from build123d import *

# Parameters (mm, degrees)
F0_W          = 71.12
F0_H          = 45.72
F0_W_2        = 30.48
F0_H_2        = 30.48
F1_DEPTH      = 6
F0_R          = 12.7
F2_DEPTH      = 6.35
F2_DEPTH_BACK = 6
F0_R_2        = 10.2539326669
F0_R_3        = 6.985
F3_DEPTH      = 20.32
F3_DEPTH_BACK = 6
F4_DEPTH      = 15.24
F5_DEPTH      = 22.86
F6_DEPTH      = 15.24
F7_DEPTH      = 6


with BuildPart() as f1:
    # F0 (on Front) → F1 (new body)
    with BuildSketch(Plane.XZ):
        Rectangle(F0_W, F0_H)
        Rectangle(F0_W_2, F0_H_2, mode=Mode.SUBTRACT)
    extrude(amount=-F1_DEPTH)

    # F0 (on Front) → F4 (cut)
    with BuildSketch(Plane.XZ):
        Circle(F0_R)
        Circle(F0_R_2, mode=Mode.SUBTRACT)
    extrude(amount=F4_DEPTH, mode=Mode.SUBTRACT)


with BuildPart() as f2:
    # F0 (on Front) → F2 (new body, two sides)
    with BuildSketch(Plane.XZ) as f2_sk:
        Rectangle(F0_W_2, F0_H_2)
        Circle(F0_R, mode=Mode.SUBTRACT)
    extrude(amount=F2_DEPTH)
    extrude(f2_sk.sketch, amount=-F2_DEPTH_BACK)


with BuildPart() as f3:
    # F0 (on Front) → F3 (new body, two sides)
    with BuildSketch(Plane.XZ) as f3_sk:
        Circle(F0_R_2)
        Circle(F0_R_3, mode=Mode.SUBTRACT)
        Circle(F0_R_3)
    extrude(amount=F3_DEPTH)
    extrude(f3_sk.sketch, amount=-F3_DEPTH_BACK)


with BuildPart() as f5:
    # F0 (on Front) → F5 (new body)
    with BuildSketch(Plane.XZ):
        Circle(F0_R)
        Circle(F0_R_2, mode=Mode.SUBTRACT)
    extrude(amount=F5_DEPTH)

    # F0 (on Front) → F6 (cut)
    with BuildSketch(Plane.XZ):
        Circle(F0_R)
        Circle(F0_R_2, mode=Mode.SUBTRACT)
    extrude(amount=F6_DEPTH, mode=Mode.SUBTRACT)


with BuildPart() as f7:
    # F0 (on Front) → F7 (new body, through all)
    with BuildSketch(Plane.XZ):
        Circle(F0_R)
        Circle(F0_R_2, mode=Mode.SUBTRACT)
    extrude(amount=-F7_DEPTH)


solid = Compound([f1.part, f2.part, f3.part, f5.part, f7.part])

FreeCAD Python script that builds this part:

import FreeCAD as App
import Part
import Sketcher
from FreeCAD import Vector
Q = App.Units.Quantity


def add_polygon(sketch, points):
    """Adds a closed chain of lines whose ends are joined by coincident constraints."""
    first, n = sketch.GeometryCount, len(points)
    for a, b in zip(points, points[1:] + points[:1]):
        sketch.addGeometry(Part.LineSegment(App.Vector(*a, 0), App.Vector(*b, 0)), False)
    for i in range(n):
        sketch.addConstraint(Sketcher.Constraint("Coincident", first + i, 2, first + (i + 1) % n, 1))

doc = App.newDocument("Part")
params = doc.addObject("Spreadsheet::Sheet", "Params")
for row, (alias, value) in enumerate([
    ("sketch1_width", "2.8 in"),
    ("sketch1_width2", "1.2 in"),
    ("sketch1_height", "1.8 in"),
    ("pad1_length", "6 mm"),
    ("sketch2_diameter", "1 in"),
    ("pocket1_length", "0.6 in"),
    ("sketch3_diameter", "1 in"),
    ("sketch3_width", "1.2 in"),
    ("pad2_length", "0.25 in"),
    ("pad2_length2", "6 mm"),
    ("pad3_length", "0.8 in"),
    ("pad3_length2", "6 mm"),
    ("sketch5_diameter", "1 in"),
    ("pad4_length", "0.9 in"),
    ("sketch6_diameter", "1 in"),
    ("pocket2_length", "0.6 in"),
    ("sketch7_diameter", "1 in"),
    ("pad5_length", "6 mm"),
], start=1):
    params.set(f"A{row}", alias)
    params.set(f"B{row}", "=" + value)
    params.setAlias(f"B{row}", alias)

body = doc.addObject("PartDesign::Body", "Body")

# Sketch on XZ plane
sketch1 = doc.addObject("Sketcher::SketchObject", "Sketch")
body.addObject(sketch1)
sketch1.AttachmentSupport = (doc.XZ_Plane, [""])
sketch1.MapMode = "FlatFace"
add_polygon(sketch1, [(-35.56, 22.86), (-35.56, -22.86), (35.56, -22.86), (35.56, 22.86)])  # lines 0-3
add_polygon(sketch1, [(15.24, -15.24), (-15.24, -15.24), (-15.24, 15.24), (15.24, 15.24)])  # lines 4-7
sketch1.addConstraint([
    Sketcher.Constraint("Vertical", 0),
    Sketcher.Constraint("Horizontal", 1),
    Sketcher.Constraint("Vertical", 2),
    Sketcher.Constraint("Horizontal", 3),
    Sketcher.Constraint("Horizontal", 4),
    Sketcher.Constraint("Vertical", 5),
    Sketcher.Constraint("Horizontal", 6),
    Sketcher.Constraint("Vertical", 7),
    Sketcher.Constraint("Symmetric", 0, 2, 2, 2, -1, 1),
    Sketcher.Constraint("Symmetric", 4, 2, 6, 2, -1, 1),
    Sketcher.Constraint("Equal", 6, 5),
    Sketcher.Constraint("DistanceX", 1, 1, 1, 2, Q("2.8 in")),
    Sketcher.Constraint("DistanceX", 4, 2, 4, 1, Q("1.2 in")),
    Sketcher.Constraint("DistanceY", 0, 2, 0, 1, Q("1.8 in")),
])
sketch1.setExpression("Constraints[19]", "Params.sketch1_width")
sketch1.setExpression("Constraints[20]", "Params.sketch1_width2")
sketch1.setExpression("Constraints[21]", "Params.sketch1_height")
pad1 = doc.addObject("PartDesign::Pad", "Pad")
body.addObject(pad1)
pad1.Profile = sketch1
pad1.setExpression("Length", "Params.pad1_length")
pad1.Reversed = True

# Sketch on XZ plane
sketch2 = doc.addObject("Sketcher::SketchObject", "Sketch001")
body.addObject(sketch2)
sketch2.AttachmentSupport = (doc.XZ_Plane, [""])
sketch2.MapMode = "FlatFace"
sketch2.addGeometry([
    Part.Circle(Vector(0, 0, 0), Vector(0, 0, 1), 12.7),
    Part.Circle(Vector(0, 0, 0), Vector(0, 0, 1), 10.253933),
], False)
sketch2.addConstraint([
    Sketcher.Constraint("Coincident", 0, 3, -1, 1),
    Sketcher.Constraint("Coincident", 1, 3, -1, 1),
    Sketcher.Constraint("Diameter", 0, Q("1 in")),
    Sketcher.Constraint("Diameter", 1, 20.507865),
])
sketch2.setExpression("Constraints[2]", "Params.sketch2_diameter")
pocket1 = doc.addObject("PartDesign::Pocket", "Pocket")
body.addObject(pocket1)
pocket1.Profile = sketch2
pocket1.setExpression("Length", "Params.pocket1_length")
pocket1.Reversed = True
body2 = doc.addObject("PartDesign::Body", "Body001")

# Sketch on XZ plane
sketch3 = doc.addObject("Sketcher::SketchObject", "Sketch002")
body2.addObject(sketch3)
sketch3.AttachmentSupport = (doc.getObject("XZ_Plane001"), [""])
sketch3.MapMode = "FlatFace"
add_polygon(sketch3, [(-15.24, 15.24), (-15.24, -15.24), (15.24, -15.24), (15.24, 15.24)])  # lines 0-3
sketch3.addGeometry(Part.Circle(Vector(0, 0, 0), Vector(0, 0, 1), 12.7), False)  # 4
sketch3.addConstraint([
    Sketcher.Constraint("Vertical", 0),
    Sketcher.Constraint("Horizontal", 1),
    Sketcher.Constraint("Vertical", 2),
    Sketcher.Constraint("Horizontal", 3),
    Sketcher.Constraint("Coincident", 4, 3, -1, 1),
    Sketcher.Constraint("Symmetric", 0, 2, 2, 2, -1, 1),
    Sketcher.Constraint("Equal", 3, 0),
    Sketcher.Constraint("Diameter", 4, Q("1 in")),
    Sketcher.Constraint("DistanceX", 1, 1, 1, 2, Q("1.2 in")),
])
sketch3.setExpression("Constraints[11]", "Params.sketch3_diameter")
sketch3.setExpression("Constraints[12]", "Params.sketch3_width")
pad2 = doc.addObject("PartDesign::Pad", "Pad001")
body2.addObject(pad2)
pad2.Profile = sketch3
pad2.Type = "TwoLengths"
pad2.setExpression("Length", "Params.pad2_length")
pad2.setExpression("Length2", "Params.pad2_length2")
body3 = doc.addObject("PartDesign::Body", "Body002")

# Sketch on XZ plane
sketch4 = doc.addObject("Sketcher::SketchObject", "Sketch003")
body3.addObject(sketch4)
sketch4.AttachmentSupport = (doc.getObject("XZ_Plane002"), [""])
sketch4.MapMode = "FlatFace"
sketch4.addGeometry(Part.Circle(Vector(0, 0, 0), Vector(0, 0, 1), 10.253933), False)
sketch4.addConstraint([
    Sketcher.Constraint("Coincident", 0, 3, -1, 1),
    Sketcher.Constraint("Diameter", 0, 20.507865),
])
pad3 = doc.addObject("PartDesign::Pad", "Pad002")
body3.addObject(pad3)
pad3.Profile = sketch4
pad3.Type = "TwoLengths"
pad3.setExpression("Length", "Params.pad3_length")
pad3.setExpression("Length2", "Params.pad3_length2")
body4 = doc.addObject("PartDesign::Body", "Body003")

# Sketch on XZ plane
sketch5 = doc.addObject("Sketcher::SketchObject", "Sketch004")
body4.addObject(sketch5)
sketch5.AttachmentSupport = (doc.getObject("XZ_Plane003"), [""])
sketch5.MapMode = "FlatFace"
sketch5.addGeometry([
    Part.Circle(Vector(0, 0, 0), Vector(0, 0, 1), 12.7),
    Part.Circle(Vector(0, 0, 0), Vector(0, 0, 1), 10.253933),
], False)
sketch5.addConstraint([
    Sketcher.Constraint("Coincident", 0, 3, -1, 1),
    Sketcher.Constraint("Coincident", 1, 3, -1, 1),
    Sketcher.Constraint("Diameter", 0, Q("1 in")),
    Sketcher.Constraint("Diameter", 1, 20.507865),
])
sketch5.setExpression("Constraints[2]", "Params.sketch5_diameter")
pad4 = doc.addObject("PartDesign::Pad", "Pad003")
body4.addObject(pad4)
pad4.Profile = sketch5
pad4.setExpression("Length", "Params.pad4_length")

# Sketch on XZ plane
sketch6 = doc.addObject("Sketcher::SketchObject", "Sketch005")
body4.addObject(sketch6)
sketch6.AttachmentSupport = (doc.getObject("XZ_Plane003"), [""])
sketch6.MapMode = "FlatFace"
sketch6.addGeometry([
    Part.Circle(Vector(0, 0, 0), Vector(0, 0, 1), 12.7),
    Part.Circle(Vector(0, 0, 0), Vector(0, 0, 1), 10.253933),
], False)
sketch6.addConstraint([
    Sketcher.Constraint("Coincident", 0, 3, -1, 1),
    Sketcher.Constraint("Coincident", 1, 3, -1, 1),
    Sketcher.Constraint("Diameter", 0, Q("1 in")),
    Sketcher.Constraint("Diameter", 1, 20.507865),
])
sketch6.setExpression("Constraints[2]", "Params.sketch6_diameter")
pocket2 = doc.addObject("PartDesign::Pocket", "Pocket001")
body4.addObject(pocket2)
pocket2.Profile = sketch6
pocket2.setExpression("Length", "Params.pocket2_length")
pocket2.Reversed = True
body5 = doc.addObject("PartDesign::Body", "Body004")

# Sketch on XZ plane
sketch7 = doc.addObject("Sketcher::SketchObject", "Sketch006")
body5.addObject(sketch7)
sketch7.AttachmentSupport = (doc.getObject("XZ_Plane004"), [""])
sketch7.MapMode = "FlatFace"
sketch7.addGeometry([
    Part.Circle(Vector(0, 0, 0), Vector(0, 0, 1), 12.7),
    Part.Circle(Vector(0, 0, 0), Vector(0, 0, 1), 10.253933),
], False)
sketch7.addConstraint([
    Sketcher.Constraint("Coincident", 0, 3, -1, 1),
    Sketcher.Constraint("Coincident", 1, 3, -1, 1),
    Sketcher.Constraint("Diameter", 0, Q("1 in")),
    Sketcher.Constraint("Diameter", 1, 20.507865),
])
sketch7.setExpression("Constraints[2]", "Params.sketch7_diameter")
pad5 = doc.addObject("PartDesign::Pad", "Pad004")
body5.addObject(pad5)
pad5.Profile = sketch7
pad5.setExpression("Length", "Params.pad5_length")
pad5.Reversed = True

doc.recompute()
